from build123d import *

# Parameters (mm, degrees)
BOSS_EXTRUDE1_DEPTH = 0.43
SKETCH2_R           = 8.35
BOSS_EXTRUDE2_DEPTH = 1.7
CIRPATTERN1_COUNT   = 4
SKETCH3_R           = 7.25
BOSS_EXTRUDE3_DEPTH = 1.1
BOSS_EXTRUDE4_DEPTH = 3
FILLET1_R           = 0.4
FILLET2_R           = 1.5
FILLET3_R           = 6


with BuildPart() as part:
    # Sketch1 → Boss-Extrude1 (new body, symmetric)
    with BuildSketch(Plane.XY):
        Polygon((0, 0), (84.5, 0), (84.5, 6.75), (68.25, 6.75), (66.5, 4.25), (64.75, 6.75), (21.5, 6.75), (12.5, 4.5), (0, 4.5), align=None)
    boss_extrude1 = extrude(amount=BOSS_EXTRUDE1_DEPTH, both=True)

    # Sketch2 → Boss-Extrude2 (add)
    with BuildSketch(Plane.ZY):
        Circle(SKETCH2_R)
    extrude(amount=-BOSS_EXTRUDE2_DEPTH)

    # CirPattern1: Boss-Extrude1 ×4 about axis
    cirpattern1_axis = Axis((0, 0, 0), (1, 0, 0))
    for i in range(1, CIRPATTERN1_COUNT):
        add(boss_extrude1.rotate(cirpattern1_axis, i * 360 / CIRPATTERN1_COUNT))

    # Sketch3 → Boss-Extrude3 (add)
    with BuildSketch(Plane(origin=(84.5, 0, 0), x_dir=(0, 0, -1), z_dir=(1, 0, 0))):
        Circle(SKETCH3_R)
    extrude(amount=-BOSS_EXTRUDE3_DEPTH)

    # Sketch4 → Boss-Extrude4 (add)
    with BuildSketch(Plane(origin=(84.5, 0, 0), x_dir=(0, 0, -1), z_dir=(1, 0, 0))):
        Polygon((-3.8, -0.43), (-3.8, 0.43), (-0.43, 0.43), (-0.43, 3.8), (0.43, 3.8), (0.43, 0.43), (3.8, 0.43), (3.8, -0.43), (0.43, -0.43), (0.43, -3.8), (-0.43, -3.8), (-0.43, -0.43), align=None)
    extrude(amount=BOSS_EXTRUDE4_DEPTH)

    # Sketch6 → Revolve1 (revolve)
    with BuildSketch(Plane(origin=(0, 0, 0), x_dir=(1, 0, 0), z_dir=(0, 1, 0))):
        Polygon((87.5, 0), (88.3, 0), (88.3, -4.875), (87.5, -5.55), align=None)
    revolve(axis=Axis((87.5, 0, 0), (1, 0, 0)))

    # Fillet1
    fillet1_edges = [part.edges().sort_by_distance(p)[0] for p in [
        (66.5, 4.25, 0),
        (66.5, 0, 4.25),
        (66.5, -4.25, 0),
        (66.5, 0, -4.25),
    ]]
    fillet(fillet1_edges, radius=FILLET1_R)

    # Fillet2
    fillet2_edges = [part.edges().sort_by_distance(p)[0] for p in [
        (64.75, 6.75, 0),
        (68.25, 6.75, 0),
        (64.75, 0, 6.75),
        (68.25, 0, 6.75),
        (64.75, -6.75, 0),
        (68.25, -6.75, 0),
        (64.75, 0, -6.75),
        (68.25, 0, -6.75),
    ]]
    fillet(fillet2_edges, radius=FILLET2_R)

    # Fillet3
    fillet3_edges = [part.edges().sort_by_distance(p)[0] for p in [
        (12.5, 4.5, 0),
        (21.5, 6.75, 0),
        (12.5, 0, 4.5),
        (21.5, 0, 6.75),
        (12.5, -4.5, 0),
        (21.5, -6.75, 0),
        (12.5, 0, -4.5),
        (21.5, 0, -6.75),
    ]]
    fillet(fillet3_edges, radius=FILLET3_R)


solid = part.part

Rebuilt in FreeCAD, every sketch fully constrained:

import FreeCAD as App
import Part
import Sketcher


def edges_at(feature, points):
    """Names of the edges that pass closest to the given points."""
    edges = feature.Shape.Edges
    near = lambda p: min(range(len(edges)), key=lambda i: edges[i].distToShape(Part.Vertex(*p))[0])
    return sorted({f"Edge{near(p) + 1}" for p in points})


def add_polygon(sketch, points):
    """Adds a closed chain of lines whose ends are joined by coincident constraints."""
    first, n = sketch.GeometryCount, len(points)
    for a, b in zip(points, points[1:] + points[:1]):
        sketch.addGeometry(Part.LineSegment(App.Vector(*a, 0), App.Vector(*b, 0)), False)
    for i in range(n):
        sketch.addConstraint(Sketcher.Constraint("Coincident", first + i, 2, first + (i + 1) % n, 1))

doc = App.newDocument("Part")
body = doc.addObject("PartDesign::Body", "Body")

# Sketch on XY plane
sketch1 = body.newObject("Sketcher::SketchObject", "Sketch")
sketch1.AttachmentSupport = (doc.getObject("XY_Plane"), [""])
sketch1.MapMode = "FlatFace"
add_polygon(sketch1, [(0, 0), (84.5, 0), (84.5, 6.8), (68.2, 6.8), (66.5, 4.2), (64.8, 6.8), (21.5, 6.8), (12.5, 4.5), (0, 4.5)])  # lines 0-8
sketch1.addConstraint([
    Sketcher.Constraint("Horizontal", 0),
    Sketcher.Constraint("Vertical", 1),
    Sketcher.Constraint("Horizontal", 2),
    Sketcher.Constraint("Horizontal", 5),
    Sketcher.Constraint("Horizontal", 7),
    Sketcher.Constraint("Vertical", 8),
    Sketcher.Constraint("Coincident", 8, 2, -1, 1),
    Sketcher.Constraint("Horizontal", 2, 2, 4, 2),
    Sketcher.Constraint("Equal", 3, 4),
    Sketcher.Constraint("DistanceX", 0, 1, 0, 2, 84.5),
    Sketcher.Constraint("DistanceX", 7, 2, 7, 1, 12.5),
    Sketcher.Constraint("DistanceY", 8, 2, 8, 1, 4.5),
    Sketcher.Constraint("DistanceX", 3, 2, 1, 2, 18.0),
    Sketcher.Constraint("DistanceX", 5, 2, 3, 2, 45.0),
    Sketcher.Constraint("DistanceX", 2, 2, 2, 1, 16.25),
    Sketcher.Constraint("DistanceY", 1, 1, 1, 2, 6.75),
    Sketcher.Constraint("DistanceY", 3, 2, 2, 2, 2.5),
])
pad1 = body.newObject("PartDesign::Pad", "Pad")
pad1.Profile = sketch1
pad1.Length = 0.86
pad1.Midplane = True

# Sketch on YZ plane
sketch2 = body.newObject("Sketcher::SketchObject", "Sketch001")
sketch2.AttachmentSupport = (doc.getObject("YZ_Plane"), [""])
sketch2.MapMode = "FlatFace"
sketch2.addGeometry(Part.Circle(App.Vector(0, 0, 0), App.Vector(0, 0, 1), 8), False)
sketch2.addConstraint([
    Sketcher.Constraint("Coincident", 0, 3, -1, 1),
    Sketcher.Constraint("Diameter", 0, 16.7),
])
pad2 = body.newObject("PartDesign::Pad", "Pad001")
pad2.Profile = sketch2
pad2.Length = 1.7
doc.recompute()

polarpattern = body.newObject("PartDesign::PolarPattern", "PolarPattern")
polarpattern.Originals = [pad1]
polarpattern.Axis = (doc.getObject("X_Axis"), [""])
polarpattern.Angle = 360
polarpattern.Occurrences = 4
body.Tip = polarpattern

# Sketch on YZ plane
sketch3 = body.newObject("Sketcher::SketchObject", "Sketch002")
sketch3.AttachmentSupport = (doc.getObject("YZ_Plane"), [""])
sketch3.MapMode = "FlatFace"
sketch3.AttachmentOffset = App.Placement(App.Vector(0, 0, 84.5), App.Rotation())
sketch3.addGeometry(Part.Circle(App.Vector(0, 0, 0), App.Vector(0, 0, 1), 7), False)
sketch3.addConstraint([
    Sketcher.Constraint("Coincident", 0, 3, -1, 1),
    Sketcher.Constraint("Diameter", 0, 14.5),
])
pad3 = body.newObject("PartDesign::Pad", "Pad002")
pad3.Profile = sketch3
pad3.Length = 1.1
pad3.Reversed = True

# Sketch on YZ plane
sketch4 = body.newObject("Sketcher::SketchObject", "Sketch003")
sketch4.AttachmentSupport = (doc.getObject("YZ_Plane"), [""])
sketch4.MapMode = "FlatFace"
sketch4.AttachmentOffset = App.Placement(App.Vector(0, 0, 84.5), App.Rotation())
add_polygon(sketch4, [(0.4, 3.8), (-0.4, 3.8), (-0.4, 0.4), (-3.8, 0.4), (-3.8, -0.4), (-0.4, -0.4), (-0.4, -3.8), (0.4, -3.8), (0.4, -0.4), (3.8, -0.4), (3.8, 0.4), (0.4, 0.4)])  # lines 0-11
sketch4.addConstraint([
    Sketcher.Constraint("Horizontal", 0),
    Sketcher.Constraint("Vertical", 1),
    Sketcher.Constraint("Horizontal", 2),
    Sketcher.Constraint("Vertical", 3),
    Sketcher.Constraint("Horizontal", 4),
    Sketcher.Constraint("Vertical", 5),
    Sketcher.Constraint("Horizontal", 6),
    Sketcher.Constraint("Vertical", 7),
    Sketcher.Constraint("Horizontal", 8),
    Sketcher.Constraint("Vertical", 9),
    Sketcher.Constraint("Horizontal", 10),
    Sketcher.Constraint("Vertical", 11),
    Sketcher.Constraint("Symmetric", 0, 2, 6, 2, -1, 1),
    Sketcher.Constraint("Symmetric", 2, 2, 8, 2, -1, 1),
    Sketcher.Constraint("Symmetric", 4, 2, 10, 2, -1, 1),
    Sketcher.Constraint("Symmetric", 4, 2, 7, 2, -2),
    Sketcher.Constraint("Equal", 10, 1),
    Sketcher.Constraint("Equal", 6, 3),
    Sketcher.Constraint("DistanceX", 0, 2, 0, 1, 0.86),
    Sketcher.Constraint("DistanceX", 2, 2, 2, 1, 3.37),
])
pad4 = body.newObject("PartDesign::Pad", "Pad003")
pad4.Profile = sketch4
pad4.Length = 3

# Sketch on XZ plane
sketch5 = body.newObject("Sketcher::SketchObject", "Sketch004")
sketch5.AttachmentSupport = (doc.getObject("XZ_Plane"), [""])
sketch5.MapMode = "FlatFace"
add_polygon(sketch5, [(88.3, 0), (87.5, 0), (87.5, 5.5), (88.3, 4.9)])  # lines 0-3
sketch5.addConstraint([
    Sketcher.Constraint("Horizontal", 0),
    Sketcher.Constraint("Vertical", 1),
    Sketcher.Constraint("Vertical", 3),
    Sketcher.Constraint("PointOnObject", 0, 2, -1),
    Sketcher.Constraint("DistanceX", 0, 2, 0, 1, 0.8),
    Sketcher.Constraint("DistanceY", 1, 1, 1, 2, 5.55),
    Sketcher.Constraint("DistanceX", -1, 1, 0, 2, 87.5),
    Sketcher.Constraint("DistanceY", 3, 2, 3, 1, 4.875),
])
revolution = body.newObject("PartDesign::Revolution", "Revolution")
revolution.Profile = sketch5
revolution.ReferenceAxis = (sketch5, ["H_Axis"])
revolution.Angle = 360
doc.recompute()

fillet = body.newObject("PartDesign::Fillet", "Fillet")
fillet.Base = (revolution, edges_at(revolution, [
    (66.5, 4.25, 0),
    (66.5, 0, 4.25),
    (66.5, -4.25, 0),
    (66.5, 0, -4.25),
]))
fillet.Radius = 0.4
doc.recompute()

fillet2 = body.newObject("PartDesign::Fillet", "Fillet001")
fillet2.Base = (fillet, edges_at(fillet, [
    (64.75, 6.75, 0),
    (68.25, 6.75, 0),
    (64.75, 0, 6.75),
    (68.25, 0, 6.75),
    (64.75, -6.75, 0),
    (68.25, -6.75, 0),
    (64.75, 0, -6.75),
    (68.25, 0, -6.75),
]))
fillet2.Radius = 1.5
doc.recompute()

fillet3 = body.newObject("PartDesign::Fillet", "Fillet002")
fillet3.Base = (fillet2, edges_at(fillet2, [
    (12.5, 4.5, 0),
    (21.5, 6.75, 0),
    (12.5, 0, 4.5),
    (21.5, 0, 6.75),
    (12.5, -4.5, 0),
    (21.5, -6.75, 0),
    (12.5, 0, -4.5),
    (21.5, 0, -6.75),
]))
fillet3.Radius = 6

doc.recompute()
